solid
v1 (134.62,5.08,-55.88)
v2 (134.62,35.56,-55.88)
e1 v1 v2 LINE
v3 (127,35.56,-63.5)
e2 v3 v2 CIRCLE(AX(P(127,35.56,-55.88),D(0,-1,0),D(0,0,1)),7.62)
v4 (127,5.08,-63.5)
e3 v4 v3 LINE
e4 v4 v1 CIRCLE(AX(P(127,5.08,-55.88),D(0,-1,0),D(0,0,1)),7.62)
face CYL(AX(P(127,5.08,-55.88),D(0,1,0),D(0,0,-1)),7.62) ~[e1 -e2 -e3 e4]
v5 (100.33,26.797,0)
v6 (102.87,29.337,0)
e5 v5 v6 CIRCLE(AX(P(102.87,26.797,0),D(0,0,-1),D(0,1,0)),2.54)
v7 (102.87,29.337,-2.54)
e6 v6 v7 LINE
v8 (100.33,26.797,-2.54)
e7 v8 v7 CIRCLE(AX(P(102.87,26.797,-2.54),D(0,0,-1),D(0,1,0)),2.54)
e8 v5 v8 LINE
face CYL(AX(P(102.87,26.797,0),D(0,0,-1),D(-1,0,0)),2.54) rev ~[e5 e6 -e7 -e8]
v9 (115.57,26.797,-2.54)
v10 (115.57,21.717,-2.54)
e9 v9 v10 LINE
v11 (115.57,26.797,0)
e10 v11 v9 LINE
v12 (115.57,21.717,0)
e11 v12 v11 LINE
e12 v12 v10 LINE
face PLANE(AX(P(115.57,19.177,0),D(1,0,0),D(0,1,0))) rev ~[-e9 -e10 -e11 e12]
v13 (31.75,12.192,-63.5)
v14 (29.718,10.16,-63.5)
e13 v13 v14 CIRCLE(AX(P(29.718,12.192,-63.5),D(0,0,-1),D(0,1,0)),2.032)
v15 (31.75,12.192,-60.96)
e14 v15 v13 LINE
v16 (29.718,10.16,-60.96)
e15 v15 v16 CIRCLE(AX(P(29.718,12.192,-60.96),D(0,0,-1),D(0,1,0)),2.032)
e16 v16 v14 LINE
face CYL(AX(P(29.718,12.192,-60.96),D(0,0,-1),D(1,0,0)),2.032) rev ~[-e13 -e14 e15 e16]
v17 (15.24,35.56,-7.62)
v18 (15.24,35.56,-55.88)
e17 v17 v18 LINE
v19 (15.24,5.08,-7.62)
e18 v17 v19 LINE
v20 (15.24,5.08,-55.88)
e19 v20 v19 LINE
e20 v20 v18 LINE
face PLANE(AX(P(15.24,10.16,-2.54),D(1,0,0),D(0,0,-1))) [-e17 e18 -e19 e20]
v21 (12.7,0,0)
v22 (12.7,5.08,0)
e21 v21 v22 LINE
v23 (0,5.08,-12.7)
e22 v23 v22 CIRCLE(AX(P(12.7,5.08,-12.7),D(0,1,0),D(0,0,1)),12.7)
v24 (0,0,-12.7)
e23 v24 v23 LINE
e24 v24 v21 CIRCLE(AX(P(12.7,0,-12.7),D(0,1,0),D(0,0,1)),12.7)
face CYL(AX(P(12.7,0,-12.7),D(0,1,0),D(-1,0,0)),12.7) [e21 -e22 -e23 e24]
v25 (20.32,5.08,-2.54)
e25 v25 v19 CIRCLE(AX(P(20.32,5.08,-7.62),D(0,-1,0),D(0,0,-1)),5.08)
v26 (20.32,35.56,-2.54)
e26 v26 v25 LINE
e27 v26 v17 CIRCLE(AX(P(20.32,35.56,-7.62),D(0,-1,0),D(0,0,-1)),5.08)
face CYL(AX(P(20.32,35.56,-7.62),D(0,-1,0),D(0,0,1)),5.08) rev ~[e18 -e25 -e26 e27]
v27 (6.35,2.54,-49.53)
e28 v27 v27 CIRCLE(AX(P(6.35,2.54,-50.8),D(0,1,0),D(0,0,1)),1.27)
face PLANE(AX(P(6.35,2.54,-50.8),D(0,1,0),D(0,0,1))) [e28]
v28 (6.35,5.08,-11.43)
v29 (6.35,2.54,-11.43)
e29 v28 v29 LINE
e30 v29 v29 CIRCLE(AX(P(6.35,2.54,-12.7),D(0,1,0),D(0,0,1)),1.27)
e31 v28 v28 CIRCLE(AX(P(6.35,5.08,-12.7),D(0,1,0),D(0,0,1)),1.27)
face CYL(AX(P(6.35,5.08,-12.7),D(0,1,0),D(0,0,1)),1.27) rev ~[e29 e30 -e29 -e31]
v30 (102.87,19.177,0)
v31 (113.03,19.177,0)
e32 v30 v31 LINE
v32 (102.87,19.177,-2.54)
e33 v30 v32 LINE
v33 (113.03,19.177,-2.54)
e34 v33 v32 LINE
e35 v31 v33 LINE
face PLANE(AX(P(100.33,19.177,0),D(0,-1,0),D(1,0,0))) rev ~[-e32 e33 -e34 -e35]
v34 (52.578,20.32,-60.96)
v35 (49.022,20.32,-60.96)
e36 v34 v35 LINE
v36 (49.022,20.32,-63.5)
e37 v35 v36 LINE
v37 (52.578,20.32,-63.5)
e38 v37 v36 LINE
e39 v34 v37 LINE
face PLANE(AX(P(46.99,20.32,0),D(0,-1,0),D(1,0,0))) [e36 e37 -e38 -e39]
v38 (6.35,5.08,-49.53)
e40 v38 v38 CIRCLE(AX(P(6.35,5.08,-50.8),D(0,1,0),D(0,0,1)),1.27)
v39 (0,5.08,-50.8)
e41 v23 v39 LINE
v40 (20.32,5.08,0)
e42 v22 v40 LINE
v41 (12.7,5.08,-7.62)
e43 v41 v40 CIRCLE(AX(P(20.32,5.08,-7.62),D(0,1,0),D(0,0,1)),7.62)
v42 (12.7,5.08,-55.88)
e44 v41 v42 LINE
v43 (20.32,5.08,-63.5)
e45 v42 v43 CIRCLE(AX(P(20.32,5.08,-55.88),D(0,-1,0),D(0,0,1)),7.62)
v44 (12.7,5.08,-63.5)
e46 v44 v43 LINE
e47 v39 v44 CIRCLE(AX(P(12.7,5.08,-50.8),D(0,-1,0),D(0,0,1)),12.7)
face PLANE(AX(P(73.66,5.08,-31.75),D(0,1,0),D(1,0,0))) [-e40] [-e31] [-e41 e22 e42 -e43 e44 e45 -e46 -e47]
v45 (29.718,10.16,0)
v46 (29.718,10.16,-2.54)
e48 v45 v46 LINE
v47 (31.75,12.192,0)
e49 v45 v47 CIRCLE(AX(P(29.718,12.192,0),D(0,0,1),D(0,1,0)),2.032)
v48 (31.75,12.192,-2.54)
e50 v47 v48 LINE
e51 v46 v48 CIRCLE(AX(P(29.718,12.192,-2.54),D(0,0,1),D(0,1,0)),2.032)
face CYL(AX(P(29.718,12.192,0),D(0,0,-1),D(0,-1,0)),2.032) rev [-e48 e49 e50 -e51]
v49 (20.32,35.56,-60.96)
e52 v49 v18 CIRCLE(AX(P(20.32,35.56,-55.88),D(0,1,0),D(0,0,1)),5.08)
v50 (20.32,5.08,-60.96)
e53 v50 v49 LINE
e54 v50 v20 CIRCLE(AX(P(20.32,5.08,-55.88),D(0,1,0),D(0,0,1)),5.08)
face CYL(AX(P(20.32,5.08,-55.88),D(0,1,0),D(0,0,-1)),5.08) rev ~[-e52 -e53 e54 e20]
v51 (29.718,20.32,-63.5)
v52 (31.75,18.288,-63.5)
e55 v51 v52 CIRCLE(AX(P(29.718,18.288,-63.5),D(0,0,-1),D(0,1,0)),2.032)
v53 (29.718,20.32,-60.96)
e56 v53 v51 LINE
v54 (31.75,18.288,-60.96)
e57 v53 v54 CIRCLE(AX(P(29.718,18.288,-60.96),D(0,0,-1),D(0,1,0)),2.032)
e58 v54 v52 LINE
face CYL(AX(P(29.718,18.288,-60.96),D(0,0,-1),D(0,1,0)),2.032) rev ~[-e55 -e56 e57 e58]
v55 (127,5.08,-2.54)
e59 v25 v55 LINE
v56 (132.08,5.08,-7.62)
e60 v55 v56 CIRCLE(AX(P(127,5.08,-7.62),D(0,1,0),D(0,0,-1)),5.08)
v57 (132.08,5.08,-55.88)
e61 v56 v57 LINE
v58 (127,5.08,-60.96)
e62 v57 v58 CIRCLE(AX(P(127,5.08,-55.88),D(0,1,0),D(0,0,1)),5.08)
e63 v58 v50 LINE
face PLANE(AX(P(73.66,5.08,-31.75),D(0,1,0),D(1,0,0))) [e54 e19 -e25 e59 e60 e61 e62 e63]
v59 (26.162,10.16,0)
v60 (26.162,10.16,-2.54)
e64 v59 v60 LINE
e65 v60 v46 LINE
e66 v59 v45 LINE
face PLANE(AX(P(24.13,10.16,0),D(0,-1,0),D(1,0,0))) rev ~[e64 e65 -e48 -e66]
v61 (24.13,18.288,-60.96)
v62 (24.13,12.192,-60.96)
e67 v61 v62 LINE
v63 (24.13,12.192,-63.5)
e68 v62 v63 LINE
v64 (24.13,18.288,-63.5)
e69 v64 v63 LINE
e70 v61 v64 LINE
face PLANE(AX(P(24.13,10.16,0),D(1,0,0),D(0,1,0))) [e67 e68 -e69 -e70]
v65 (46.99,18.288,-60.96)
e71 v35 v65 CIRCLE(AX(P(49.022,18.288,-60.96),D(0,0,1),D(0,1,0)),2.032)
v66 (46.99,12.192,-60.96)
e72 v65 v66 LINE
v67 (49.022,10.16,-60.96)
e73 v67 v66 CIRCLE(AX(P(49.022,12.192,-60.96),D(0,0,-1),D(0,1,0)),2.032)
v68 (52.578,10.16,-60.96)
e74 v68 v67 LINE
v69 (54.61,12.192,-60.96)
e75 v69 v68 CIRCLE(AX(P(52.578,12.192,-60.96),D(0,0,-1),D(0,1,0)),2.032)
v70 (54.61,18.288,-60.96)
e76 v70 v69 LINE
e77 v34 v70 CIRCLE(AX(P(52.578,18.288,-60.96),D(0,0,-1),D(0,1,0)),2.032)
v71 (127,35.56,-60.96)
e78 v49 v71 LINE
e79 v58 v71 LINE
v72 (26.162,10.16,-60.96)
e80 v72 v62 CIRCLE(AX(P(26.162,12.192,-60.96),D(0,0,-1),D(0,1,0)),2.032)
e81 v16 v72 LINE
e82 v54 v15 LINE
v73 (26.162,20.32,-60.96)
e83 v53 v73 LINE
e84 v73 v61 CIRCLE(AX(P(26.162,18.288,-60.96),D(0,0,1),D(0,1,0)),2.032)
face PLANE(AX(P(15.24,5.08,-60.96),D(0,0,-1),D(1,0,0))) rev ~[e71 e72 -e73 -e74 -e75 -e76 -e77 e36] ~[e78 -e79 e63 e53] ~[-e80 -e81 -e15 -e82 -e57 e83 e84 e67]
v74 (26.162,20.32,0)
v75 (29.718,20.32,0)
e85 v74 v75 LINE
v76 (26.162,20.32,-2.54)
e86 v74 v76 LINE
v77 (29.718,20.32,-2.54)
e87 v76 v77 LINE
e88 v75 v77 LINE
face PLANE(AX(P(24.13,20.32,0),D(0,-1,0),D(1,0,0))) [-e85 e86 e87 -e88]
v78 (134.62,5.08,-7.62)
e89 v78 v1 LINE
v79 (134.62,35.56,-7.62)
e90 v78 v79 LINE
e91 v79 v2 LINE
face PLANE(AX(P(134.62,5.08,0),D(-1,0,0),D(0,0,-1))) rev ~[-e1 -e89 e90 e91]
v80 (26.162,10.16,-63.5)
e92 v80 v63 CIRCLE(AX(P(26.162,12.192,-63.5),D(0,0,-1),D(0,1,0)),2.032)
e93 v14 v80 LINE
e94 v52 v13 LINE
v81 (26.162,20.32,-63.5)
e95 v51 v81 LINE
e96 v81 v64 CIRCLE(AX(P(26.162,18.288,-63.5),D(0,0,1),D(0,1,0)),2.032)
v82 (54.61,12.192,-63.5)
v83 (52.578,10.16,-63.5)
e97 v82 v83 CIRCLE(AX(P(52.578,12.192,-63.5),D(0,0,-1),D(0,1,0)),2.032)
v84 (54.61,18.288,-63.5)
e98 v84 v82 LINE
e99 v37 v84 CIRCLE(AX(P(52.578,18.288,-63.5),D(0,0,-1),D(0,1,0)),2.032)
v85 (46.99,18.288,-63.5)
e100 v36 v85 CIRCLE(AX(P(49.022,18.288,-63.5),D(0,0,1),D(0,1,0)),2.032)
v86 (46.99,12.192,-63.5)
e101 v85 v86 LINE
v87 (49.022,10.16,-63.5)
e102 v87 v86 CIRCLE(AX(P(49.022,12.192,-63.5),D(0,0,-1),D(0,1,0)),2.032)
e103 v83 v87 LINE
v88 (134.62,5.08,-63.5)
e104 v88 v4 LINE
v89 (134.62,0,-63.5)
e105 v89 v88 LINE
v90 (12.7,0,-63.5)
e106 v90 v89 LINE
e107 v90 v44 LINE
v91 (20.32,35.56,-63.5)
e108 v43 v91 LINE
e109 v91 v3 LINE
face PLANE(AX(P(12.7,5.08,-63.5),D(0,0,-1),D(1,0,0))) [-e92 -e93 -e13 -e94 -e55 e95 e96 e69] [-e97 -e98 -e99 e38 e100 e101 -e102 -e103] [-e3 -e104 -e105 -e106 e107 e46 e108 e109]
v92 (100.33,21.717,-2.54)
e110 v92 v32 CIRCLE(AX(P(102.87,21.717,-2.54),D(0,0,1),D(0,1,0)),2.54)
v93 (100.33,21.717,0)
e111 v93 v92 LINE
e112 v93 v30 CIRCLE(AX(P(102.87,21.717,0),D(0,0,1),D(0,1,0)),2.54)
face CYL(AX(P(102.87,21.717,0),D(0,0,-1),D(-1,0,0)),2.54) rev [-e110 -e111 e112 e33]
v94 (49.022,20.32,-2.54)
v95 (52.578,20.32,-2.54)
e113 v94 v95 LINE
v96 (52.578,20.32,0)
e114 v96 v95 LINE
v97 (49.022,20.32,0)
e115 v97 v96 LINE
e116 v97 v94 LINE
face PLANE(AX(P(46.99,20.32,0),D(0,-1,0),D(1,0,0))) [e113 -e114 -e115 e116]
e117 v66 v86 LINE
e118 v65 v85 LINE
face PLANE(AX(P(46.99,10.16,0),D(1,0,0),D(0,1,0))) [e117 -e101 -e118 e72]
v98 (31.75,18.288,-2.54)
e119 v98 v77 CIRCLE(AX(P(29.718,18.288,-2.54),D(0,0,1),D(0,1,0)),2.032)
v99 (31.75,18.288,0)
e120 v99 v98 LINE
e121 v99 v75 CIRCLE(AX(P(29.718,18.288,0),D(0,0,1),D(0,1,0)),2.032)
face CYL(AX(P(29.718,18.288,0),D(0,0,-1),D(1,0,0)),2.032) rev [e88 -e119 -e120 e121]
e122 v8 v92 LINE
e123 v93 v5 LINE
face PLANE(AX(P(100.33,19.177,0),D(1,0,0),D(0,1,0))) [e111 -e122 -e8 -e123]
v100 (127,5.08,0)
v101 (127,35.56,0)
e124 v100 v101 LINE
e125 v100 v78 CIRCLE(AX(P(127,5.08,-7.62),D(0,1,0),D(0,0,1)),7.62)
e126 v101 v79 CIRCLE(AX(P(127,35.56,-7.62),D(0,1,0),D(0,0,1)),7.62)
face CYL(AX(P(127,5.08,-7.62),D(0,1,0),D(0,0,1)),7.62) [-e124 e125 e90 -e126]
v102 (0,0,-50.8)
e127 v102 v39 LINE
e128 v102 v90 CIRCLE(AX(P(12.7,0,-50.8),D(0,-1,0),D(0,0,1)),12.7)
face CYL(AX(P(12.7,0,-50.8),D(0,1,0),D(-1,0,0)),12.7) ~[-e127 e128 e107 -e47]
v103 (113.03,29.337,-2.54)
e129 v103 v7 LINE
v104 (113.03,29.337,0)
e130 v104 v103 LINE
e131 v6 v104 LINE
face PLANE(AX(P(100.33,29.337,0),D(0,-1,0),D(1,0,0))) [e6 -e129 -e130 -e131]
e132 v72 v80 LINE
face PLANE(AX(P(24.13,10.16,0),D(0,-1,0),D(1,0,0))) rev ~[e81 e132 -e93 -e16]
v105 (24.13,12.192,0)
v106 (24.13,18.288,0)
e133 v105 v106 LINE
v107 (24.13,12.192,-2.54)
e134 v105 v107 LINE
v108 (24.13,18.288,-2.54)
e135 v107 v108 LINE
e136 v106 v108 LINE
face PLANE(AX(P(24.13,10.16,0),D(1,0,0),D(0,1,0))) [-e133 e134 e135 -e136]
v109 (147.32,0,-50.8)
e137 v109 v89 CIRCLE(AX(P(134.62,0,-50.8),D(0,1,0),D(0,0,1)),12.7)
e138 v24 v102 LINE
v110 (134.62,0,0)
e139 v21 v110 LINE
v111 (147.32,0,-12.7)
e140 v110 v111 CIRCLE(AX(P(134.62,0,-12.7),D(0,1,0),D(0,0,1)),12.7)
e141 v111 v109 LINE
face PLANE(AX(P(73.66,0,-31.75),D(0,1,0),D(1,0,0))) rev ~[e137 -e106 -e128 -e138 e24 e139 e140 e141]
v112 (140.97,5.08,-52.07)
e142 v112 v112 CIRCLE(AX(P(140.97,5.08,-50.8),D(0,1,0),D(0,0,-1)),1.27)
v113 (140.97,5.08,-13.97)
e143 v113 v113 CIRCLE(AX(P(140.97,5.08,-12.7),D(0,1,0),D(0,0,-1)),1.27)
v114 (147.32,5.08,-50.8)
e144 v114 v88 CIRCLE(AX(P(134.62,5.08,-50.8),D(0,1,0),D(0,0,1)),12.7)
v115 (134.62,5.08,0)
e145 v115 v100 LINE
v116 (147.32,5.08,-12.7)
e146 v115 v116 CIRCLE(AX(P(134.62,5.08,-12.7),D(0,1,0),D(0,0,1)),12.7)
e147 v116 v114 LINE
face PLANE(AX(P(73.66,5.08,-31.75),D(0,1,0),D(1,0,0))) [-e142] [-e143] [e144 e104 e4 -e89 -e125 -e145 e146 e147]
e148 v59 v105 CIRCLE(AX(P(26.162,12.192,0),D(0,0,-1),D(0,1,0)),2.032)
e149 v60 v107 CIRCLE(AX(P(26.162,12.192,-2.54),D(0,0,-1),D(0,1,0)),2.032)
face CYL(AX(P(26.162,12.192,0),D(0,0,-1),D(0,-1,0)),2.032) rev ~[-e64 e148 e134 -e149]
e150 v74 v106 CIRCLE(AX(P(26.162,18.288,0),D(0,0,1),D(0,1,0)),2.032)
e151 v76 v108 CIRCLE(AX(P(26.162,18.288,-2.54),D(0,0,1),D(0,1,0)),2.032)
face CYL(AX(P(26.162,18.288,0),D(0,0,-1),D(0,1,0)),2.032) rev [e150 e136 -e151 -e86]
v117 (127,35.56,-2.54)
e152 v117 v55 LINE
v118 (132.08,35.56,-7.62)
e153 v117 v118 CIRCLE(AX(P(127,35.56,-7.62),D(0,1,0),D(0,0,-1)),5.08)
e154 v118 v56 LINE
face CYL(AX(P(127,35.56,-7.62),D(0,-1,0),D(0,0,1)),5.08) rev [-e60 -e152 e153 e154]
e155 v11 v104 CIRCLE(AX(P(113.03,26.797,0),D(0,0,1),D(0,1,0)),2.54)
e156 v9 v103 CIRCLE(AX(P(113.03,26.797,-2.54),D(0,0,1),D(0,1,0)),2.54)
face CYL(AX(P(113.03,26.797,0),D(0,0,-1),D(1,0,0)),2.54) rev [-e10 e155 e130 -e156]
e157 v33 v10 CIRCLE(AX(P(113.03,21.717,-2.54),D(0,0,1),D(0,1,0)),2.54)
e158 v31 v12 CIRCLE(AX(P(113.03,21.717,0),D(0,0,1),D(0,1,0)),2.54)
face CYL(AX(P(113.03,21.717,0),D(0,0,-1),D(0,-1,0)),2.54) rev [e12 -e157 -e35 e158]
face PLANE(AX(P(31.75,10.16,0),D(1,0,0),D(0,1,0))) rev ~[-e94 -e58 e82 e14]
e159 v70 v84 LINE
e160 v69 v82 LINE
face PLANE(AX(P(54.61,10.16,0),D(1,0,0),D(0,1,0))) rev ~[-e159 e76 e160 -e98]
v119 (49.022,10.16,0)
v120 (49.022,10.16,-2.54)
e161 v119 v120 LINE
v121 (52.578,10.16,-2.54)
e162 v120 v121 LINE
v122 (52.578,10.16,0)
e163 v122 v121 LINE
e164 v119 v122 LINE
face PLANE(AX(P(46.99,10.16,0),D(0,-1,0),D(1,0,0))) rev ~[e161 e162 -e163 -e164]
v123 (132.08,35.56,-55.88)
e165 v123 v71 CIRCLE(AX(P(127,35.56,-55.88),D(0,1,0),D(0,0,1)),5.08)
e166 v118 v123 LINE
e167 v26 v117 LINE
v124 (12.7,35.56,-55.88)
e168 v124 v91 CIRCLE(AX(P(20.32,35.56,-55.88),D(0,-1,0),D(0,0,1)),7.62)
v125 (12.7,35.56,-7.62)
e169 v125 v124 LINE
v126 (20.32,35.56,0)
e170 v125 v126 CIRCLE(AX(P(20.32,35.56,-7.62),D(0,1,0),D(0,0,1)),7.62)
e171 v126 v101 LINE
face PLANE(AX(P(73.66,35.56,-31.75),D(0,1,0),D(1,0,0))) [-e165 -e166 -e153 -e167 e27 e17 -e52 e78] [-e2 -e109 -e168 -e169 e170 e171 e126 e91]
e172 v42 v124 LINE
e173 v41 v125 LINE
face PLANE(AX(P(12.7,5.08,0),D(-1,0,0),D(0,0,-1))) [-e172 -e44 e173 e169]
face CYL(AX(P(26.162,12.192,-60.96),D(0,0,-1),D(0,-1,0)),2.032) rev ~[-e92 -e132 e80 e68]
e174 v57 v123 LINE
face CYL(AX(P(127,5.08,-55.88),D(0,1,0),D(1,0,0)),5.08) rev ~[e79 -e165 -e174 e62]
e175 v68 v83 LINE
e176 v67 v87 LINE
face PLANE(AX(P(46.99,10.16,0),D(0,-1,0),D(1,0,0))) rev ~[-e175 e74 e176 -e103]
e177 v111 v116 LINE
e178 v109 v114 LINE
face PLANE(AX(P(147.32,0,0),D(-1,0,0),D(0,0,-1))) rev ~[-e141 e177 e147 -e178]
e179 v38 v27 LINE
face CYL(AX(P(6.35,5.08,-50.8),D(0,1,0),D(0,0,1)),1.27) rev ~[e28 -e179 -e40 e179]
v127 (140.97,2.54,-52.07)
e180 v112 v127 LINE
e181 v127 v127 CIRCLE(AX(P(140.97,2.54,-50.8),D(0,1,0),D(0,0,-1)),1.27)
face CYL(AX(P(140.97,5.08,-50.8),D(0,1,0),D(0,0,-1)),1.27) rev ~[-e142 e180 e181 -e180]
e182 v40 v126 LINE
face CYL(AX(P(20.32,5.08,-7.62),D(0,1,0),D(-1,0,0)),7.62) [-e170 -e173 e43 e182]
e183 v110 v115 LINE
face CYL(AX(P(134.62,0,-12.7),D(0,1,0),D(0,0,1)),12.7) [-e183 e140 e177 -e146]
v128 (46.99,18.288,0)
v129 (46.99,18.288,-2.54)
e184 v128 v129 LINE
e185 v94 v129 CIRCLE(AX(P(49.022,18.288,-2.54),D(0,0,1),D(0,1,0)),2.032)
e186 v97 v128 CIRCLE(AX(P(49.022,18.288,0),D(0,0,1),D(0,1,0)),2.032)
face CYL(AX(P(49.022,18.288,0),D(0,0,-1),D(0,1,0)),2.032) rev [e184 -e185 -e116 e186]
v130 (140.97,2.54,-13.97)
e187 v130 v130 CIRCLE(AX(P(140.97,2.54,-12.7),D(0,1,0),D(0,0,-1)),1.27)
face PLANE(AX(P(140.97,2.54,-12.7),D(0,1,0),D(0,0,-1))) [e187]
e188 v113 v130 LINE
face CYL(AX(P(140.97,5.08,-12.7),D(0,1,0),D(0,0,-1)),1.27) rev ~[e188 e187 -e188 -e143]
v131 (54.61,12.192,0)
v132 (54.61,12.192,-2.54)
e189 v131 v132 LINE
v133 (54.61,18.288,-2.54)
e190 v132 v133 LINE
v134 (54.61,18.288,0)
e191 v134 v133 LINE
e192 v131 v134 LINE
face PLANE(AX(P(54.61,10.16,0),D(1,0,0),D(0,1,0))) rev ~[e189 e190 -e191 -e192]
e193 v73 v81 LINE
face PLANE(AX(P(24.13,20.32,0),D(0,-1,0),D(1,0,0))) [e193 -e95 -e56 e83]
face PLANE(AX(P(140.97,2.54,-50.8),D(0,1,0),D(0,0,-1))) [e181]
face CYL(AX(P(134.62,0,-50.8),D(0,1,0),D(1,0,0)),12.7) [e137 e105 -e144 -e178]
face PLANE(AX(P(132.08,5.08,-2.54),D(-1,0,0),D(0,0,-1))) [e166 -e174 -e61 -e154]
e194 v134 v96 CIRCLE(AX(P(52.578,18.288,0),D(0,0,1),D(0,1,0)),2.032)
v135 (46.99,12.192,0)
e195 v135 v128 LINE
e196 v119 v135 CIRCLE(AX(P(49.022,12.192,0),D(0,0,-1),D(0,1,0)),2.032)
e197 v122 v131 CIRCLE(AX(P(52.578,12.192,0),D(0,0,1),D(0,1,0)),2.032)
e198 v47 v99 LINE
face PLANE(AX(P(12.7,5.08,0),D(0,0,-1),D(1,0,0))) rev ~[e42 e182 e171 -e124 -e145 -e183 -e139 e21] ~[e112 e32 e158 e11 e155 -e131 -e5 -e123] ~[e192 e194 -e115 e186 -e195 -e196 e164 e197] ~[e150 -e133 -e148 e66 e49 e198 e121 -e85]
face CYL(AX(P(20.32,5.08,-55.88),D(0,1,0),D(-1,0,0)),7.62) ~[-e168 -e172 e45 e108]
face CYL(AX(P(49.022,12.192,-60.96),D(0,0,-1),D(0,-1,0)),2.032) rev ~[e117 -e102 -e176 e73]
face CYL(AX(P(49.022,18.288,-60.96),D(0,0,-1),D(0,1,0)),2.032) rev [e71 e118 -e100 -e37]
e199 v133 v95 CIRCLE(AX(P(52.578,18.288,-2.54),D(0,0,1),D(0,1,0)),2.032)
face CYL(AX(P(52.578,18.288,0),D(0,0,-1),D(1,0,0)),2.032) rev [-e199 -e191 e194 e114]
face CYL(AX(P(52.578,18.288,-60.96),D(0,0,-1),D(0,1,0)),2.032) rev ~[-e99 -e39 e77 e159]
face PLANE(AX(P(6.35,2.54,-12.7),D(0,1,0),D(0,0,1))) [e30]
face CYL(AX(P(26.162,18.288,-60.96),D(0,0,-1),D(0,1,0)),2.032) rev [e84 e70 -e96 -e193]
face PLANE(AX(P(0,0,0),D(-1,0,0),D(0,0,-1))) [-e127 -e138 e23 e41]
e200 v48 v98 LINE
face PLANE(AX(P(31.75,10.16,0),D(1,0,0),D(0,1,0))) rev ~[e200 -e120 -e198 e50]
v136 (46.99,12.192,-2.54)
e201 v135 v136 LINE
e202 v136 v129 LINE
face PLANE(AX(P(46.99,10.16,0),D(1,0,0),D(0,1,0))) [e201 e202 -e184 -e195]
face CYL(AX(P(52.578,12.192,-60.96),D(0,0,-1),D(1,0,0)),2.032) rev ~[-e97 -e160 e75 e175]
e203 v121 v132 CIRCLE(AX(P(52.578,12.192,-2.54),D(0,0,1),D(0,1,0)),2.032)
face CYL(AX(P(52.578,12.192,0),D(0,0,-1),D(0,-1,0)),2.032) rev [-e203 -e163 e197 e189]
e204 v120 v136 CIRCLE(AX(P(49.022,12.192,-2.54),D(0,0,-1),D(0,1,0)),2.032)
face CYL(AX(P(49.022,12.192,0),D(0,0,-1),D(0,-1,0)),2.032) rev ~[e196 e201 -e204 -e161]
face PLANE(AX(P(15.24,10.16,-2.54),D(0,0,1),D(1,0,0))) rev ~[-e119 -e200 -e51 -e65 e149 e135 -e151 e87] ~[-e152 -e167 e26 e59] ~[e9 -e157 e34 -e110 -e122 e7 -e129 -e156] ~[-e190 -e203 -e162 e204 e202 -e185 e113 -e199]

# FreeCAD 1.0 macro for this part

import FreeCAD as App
import Part
import Sketcher
from FreeCAD import Vector
Q = App.Units.Quantity


def edges_at(feature, points):
    """Names of the edges that pass closest to the given points."""
    edges = feature.Shape.Edges
    near = lambda p: min(range(len(edges)), key=lambda i: edges[i].distToShape(Part.Vertex(*p))[0])
    return sorted({f"Edge{near(p) + 1}" for p in points})

doc = App.newDocument("Part")
body = doc.addObject("PartDesign::Body", "Body")

# Sketch on XZ plane
sketch1 = body.newObject("Sketcher::SketchObject", "Sketch")
sketch1.AttachmentSupport = (doc.getObject("XZ_Plane"), [""])
sketch1.MapMode = "FlatFace"
sketch1.addGeometry([
    Part.LineSegment(Vector(0, -63.5, 0), Vector(0, 0, 0)),
    Part.LineSegment(Vector(0, 0, 0), Vector(147.32, 0, 0)),
    Part.LineSegment(Vector(147.32, 0, 0), Vector(147.32, -63.5, 0)),
    Part.LineSegment(Vector(147.32, -63.5, 0), Vector(0, -63.5, 0)),
], False)
sketch1.addConstraint([
    Sketcher.Constraint("Coincident", 0, 2, 1, 1),
    Sketcher.Constraint("Coincident", 1, 2, 2, 1),
    Sketcher.Constraint("Coincident", 2, 2, 3, 1),
    Sketcher.Constraint("Coincident", 3, 2, 0, 1),
    Sketcher.Constraint("Vertical", 0),
    Sketcher.Constraint("Horizontal", 1),
    Sketcher.Constraint("Vertical", 2),
    Sketcher.Constraint("Horizontal", 3),
    Sketcher.Constraint("Coincident", 0, 2, -1, 1),
    Sketcher.Constraint("DistanceX", 1, 1, 1, 2, Q("5.8 in")),
    Sketcher.Constraint("DistanceY", 0, 1, 0, 2, Q("2.5 in")),
])
pad1 = body.newObject("PartDesign::Pad", "Pad")
pad1.Profile = sketch1
pad1.Length = Q("0.2 in")
pad1.Reversed = True
doc.recompute()

fillet = body.newObject("PartDesign::Fillet", "Fillet")
fillet.Base = (pad1, edges_at(pad1, [
    (0, 2.54, -63.5),
    (147.32, 2.54, -63.5),
    (147.32, 2.54, 0),
    (0, 2.54, 0),
]))
fillet.Radius = Q("0.5 in")

# Sketch on XZ plane
sketch2 = body.newObject("Sketcher::SketchObject", "Sketch001")
sketch2.AttachmentSupport = (doc.getObject("XZ_Plane"), [""])
sketch2.MapMode = "FlatFace"
sketch2.AttachmentOffset = App.Placement(Vector(0, 0, -0.2 * 25.4), App.Rotation())
sketch2.addGeometry([
    Part.LineSegment(Vector(12.7, -63.5, 0), Vector(12.7, 0, 0)),  # 0
    Part.LineSegment(Vector(12.7, 0, 0), Vector(134.62, 0, 0)),  # 1
    Part.LineSegment(Vector(134.62, 0, 0), Vector(134.62, -63.5, 0)),  # 2
    Part.LineSegment(Vector(134.62, -63.5, 0), Vector(12.7, -63.5, 0)),  # 3
    Part.LineSegment(Vector(132.08, -2.54, 0), Vector(15.24, -2.54, 0)),  # 4
    Part.LineSegment(Vector(15.24, -2.54, 0), Vector(15.24, -60.96, 0)),  # 5
    Part.LineSegment(Vector(15.24, -60.96, 0), Vector(132.08, -60.96, 0)),  # 6
    Part.LineSegment(Vector(132.08, -60.96, 0), Vector(132.08, -2.54, 0)),  # 7
], False)
sketch2.addConstraint([
    Sketcher.Constraint("Coincident", 0, 2, 1, 1),
    Sketcher.Constraint("Coincident", 1, 2, 2, 1),
    Sketcher.Constraint("Coincident", 2, 2, 3, 1),
    Sketcher.Constraint("Coincident", 3, 2, 0, 1),
    Sketcher.Constraint("Coincident", 4, 2, 5, 1),
    Sketcher.Constraint("Coincident", 5, 2, 6, 1),
    Sketcher.Constraint("Coincident", 6, 2, 7, 1),
    Sketcher.Constraint("Coincident", 7, 2, 4, 1),
    Sketcher.Constraint("Vertical", 0),
    Sketcher.Constraint("Horizontal", 1),
    Sketcher.Constraint("Vertical", 2),
    Sketcher.Constraint("Horizontal", 3),
    Sketcher.Constraint("Horizontal", 4),
    Sketcher.Constraint("Vertical", 5),
    Sketcher.Constraint("Horizontal", 6),
    Sketcher.Constraint("Vertical", 7),
    Sketcher.Constraint("PointOnObject", 0, 2, -1),
    Sketcher.Constraint("DistanceX", 1, 1, 1, 2, Q("4.8 in")),
    Sketcher.Constraint("DistanceX", 4, 2, 4, 1, Q("4.6 in")),
    Sketcher.Constraint("DistanceY", 0, 1, 0, 2, Q("2.5 in")),
    Sketcher.Constraint("DistanceY", 5, 2, 5, 1, Q("2.3 in")),
    Sketcher.Constraint("DistanceX", -1, 1, 0, 2, Q("0.5 in")),
    Sketcher.Constraint("DistanceX", -1, 1, 4, 2, Q("0.6 in")),
    Sketcher.Constraint("DistanceY", 4, 2, -1, 1, Q("0.1 in")),
])
pad2 = body.newObject("PartDesign::Pad", "Pad001")
pad2.Profile = sketch2
pad2.Length = Q("1.2 in")
pad2.Reversed = True

# Sketch on XZ plane
sketch3 = body.newObject("Sketcher::SketchObject", "Sketch002")
sketch3.AttachmentSupport = (doc.getObject("XZ_Plane"), [""])
sketch3.MapMode = "FlatFace"
sketch3.AttachmentOffset = App.Placement(Vector(0, 0, -0.2 * 25.4), App.Rotation())
sketch3.addGeometry([
    Part.LineSegment(Vector(15.24, -60.96, 0), Vector(15.24, -50.8, 0)),  # 0
    Part.LineSegment(Vector(15.24, -50.8, 0), Vector(25.4, -50.8, 0)),  # 1
    Part.LineSegment(Vector(25.4, -50.8, 0), Vector(25.4, -60.96, 0)),  # 2
    Part.LineSegment(Vector(25.4, -60.96, 0), Vector(15.24, -60.96, 0)),  # 3
    Part.LineSegment(Vector(121.92, -60.96, 0), Vector(121.92, -50.8, 0)),  # 4
    Part.LineSegment(Vector(121.92, -50.8, 0), Vector(132.08, -50.8, 0)),  # 5
    Part.LineSegment(Vector(132.08, -50.8, 0), Vector(132.08, -60.96, 0)),  # 6
    Part.LineSegment(Vector(132.08, -60.96, 0), Vector(121.92, -60.96, 0)),  # 7
    Part.LineSegment(Vector(121.92, -12.7, 0), Vector(121.92, -2.54, 0)),  # 8
    Part.LineSegment(Vector(121.92, -2.54, 0), Vector(132.08, -2.54, 0)),  # 9
    Part.LineSegment(Vector(132.08, -2.54, 0), Vector(132.08, -12.7, 0)),  # 10
    Part.LineSegment(Vector(132.08, -12.7, 0), Vector(121.92, -12.7, 0)),  # 11
    Part.LineSegment(Vector(15.24, -12.7, 0), Vector(15.24, -2.54, 0)),  # 12
    Part.LineSegment(Vector(15.24, -2.54, 0), Vector(25.4, -2.54, 0)),  # 13
    Part.LineSegment(Vector(25.4, -2.54, 0), Vector(25.4, -12.7, 0)),  # 14
    Part.LineSegment(Vector(25.4, -12.7, 0), Vector(15.24, -12.7, 0)),  # 15
], False)
sketch3.addConstraint([
    Sketcher.Constraint("Coincident", 0, 2, 1, 1),
    Sketcher.Constraint("Coincident", 1, 2, 2, 1),
    Sketcher.Constraint("Coincident", 2, 2, 3, 1),
    Sketcher.Constraint("Coincident", 3, 2, 0, 1),
    Sketcher.Constraint("Coincident", 4, 2, 5, 1),
    Sketcher.Constraint("Coincident", 5, 2, 6, 1),
    Sketcher.Constraint("Coincident", 6, 2, 7, 1),
    Sketcher.Constraint("Coincident", 7, 2, 4, 1),
    Sketcher.Constraint("Coincident", 8, 2, 9, 1),
    Sketcher.Constraint("Coincident", 9, 2, 10, 1),
    Sketcher.Constraint("Coincident", 10, 2, 11, 1),
    Sketcher.Constraint("Coincident", 11, 2, 8, 1),
    Sketcher.Constraint("Coincident", 12, 2, 13, 1),
    Sketcher.Constraint("Coincident", 13, 2, 14, 1),
    Sketcher.Constraint("Coincident", 14, 2, 15, 1),
    Sketcher.Constraint("Coincident", 15, 2, 12, 1),
    Sketcher.Constraint("Vertical", 0),
    Sketcher.Constraint("Horizontal", 1),
    Sketcher.Constraint("Vertical", 2),
    Sketcher.Constraint("Horizontal", 3),
    Sketcher.Constraint("Vertical", 4),
    Sketcher.Constraint("Horizontal", 5),
    Sketcher.Constraint("Vertical", 6),
    Sketcher.Constraint("Horizontal", 7),
    Sketcher.Constraint("Vertical", 8),
    Sketcher.Constraint("Horizontal", 9),
    Sketcher.Constraint("Vertical", 10),
    Sketcher.Constraint("Horizontal", 11),
    Sketcher.Constraint("Vertical", 12),
    Sketcher.Constraint("Horizontal", 13),
    Sketcher.Constraint("Vertical", 14),
    Sketcher.Constraint("Horizontal", 15),
    Sketcher.Constraint("Horizontal", 1, 2, 4, 2),
    Sketcher.Constraint("Horizontal", 3, 2, 6, 2),
    Sketcher.Constraint("Horizontal", 9, 2, 12, 2),
    Sketcher.Constraint("Horizontal", 11, 2, 14, 2),
    Sketcher.Constraint("Vertical", 7, 2, 8, 2),
    Sketcher.Constraint("Vertical", 6, 2, 9, 2),
    Sketcher.Constraint("Vertical", 3, 2, 12, 2),
    Sketcher.Constraint("Vertical", 2, 2, 13, 2),
    Sketcher.Constraint("Equal", 3, 5),
    Sketcher.Constraint("Equal", 15, 0),
    Sketcher.Constraint("Equal", 6, 8),
    Sketcher.Constraint("DistanceX", 1, 1, 1, 2, Q("0.4 in")),
    Sketcher.Constraint("DistanceY", 0, 2, -1, 1, Q("2 in")),
    Sketcher.Constraint("DistanceX", -1, 1, 1, 2, Q("1 in")),
    Sketcher.Constraint("DistanceX", -1, 1, 4, 2, Q("4.8 in")),
    Sketcher.Constraint("DistanceY", 8, 2, -1, 1, Q("0.1 in")),
])
pad3 = body.newObject("PartDesign::Pad", "Pad002")
pad3.Profile = sketch3
pad3.Length = Q("0.2 in")
pad3.Reversed = True
doc.recompute()

fillet2 = body.newObject("PartDesign::Fillet", "Fillet001")
fillet2.Base = (pad3, edges_at(pad3, [
    (25.4, 7.62, -12.7),
    (25.4, 7.62, -50.8),
    (121.92, 7.62, -50.8),
    (121.92, 7.62, -12.7),
]))
fillet2.Radius = Q("0.2 in")

# Sketch on XZ plane
sketch4 = body.newObject("Sketcher::SketchObject", "Sketch003")
sketch4.AttachmentSupport = (doc.getObject("XZ_Plane"), [""])
sketch4.MapMode = "FlatFace"
sketch4.AttachmentOffset = App.Placement(Vector(0, 0, -0.4 * 25.4), App.Rotation())
sketch4.addGeometry([
    Part.Circle(Vector(20.32, -55.88, 0), Vector(0, 0, 1), 3.175),
    Part.Circle(Vector(127, -55.88, 0), Vector(0, 0, 1), 3.175),
    Part.Circle(Vector(20.32, -7.62, 0), Vector(0, 0, 1), 3.175),
    Part.Circle(Vector(127, -7.62, 0), Vector(0, 0, 1), 3.175),
], False)
sketch4.addConstraint([
    Sketcher.Constraint("Equal", 0, 1),
    Sketcher.Constraint("Equal", 1, 2),
    Sketcher.Constraint("Equal", 2, 3),
    Sketcher.Constraint("Horizontal", 0, 3, 1, 3),
    Sketcher.Constraint("Horizontal", 2, 3, 3, 3),
    Sketcher.Constraint("Vertical", 0, 3, 2, 3),
    Sketcher.Constraint("Vertical", 1, 3, 3, 3),
    Sketcher.Constraint("Diameter", 0, Q("0.25 in")),
    Sketcher.Constraint("DistanceX", -1, 1, 1, 3, Q("5 in")),
    Sketcher.Constraint("DistanceX", -1, 1, 0, 3, Q("0.8 in")),
    Sketcher.Constraint("DistanceY", 0, 3, -1, 1, Q("2.2 in")),
    Sketcher.Constraint("DistanceY", 2, 3, -1, 1, Q("0.3 in")),
])
pocket1 = body.newObject("PartDesign::Pocket", "Pocket")
pocket1.Profile = sketch4
pocket1.Type = "ThroughAll"
pocket1.Reversed = True
doc.recompute()

fillet3 = body.newObject("PartDesign::Fillet", "Fillet002")
fillet3.Base = (pocket1, edges_at(pocket1, [
    (12.7, 20.32, -63.5),
    (12.7, 20.32, 0),
    (134.62, 20.32, 0),
    (134.62, 20.32, -63.5),
]))
fillet3.Radius = Q("0.3 in")

# Sketch on XZ plane
sketch5 = body.newObject("Sketcher::SketchObject", "Sketch004")
sketch5.AttachmentSupport = (doc.getObject("XZ_Plane"), [""])
sketch5.MapMode = "FlatFace"
sketch5.AttachmentOffset = App.Placement(Vector(0, 0, -0.4 * 25.4), App.Rotation())
sketch5.addGeometry([
    Part.Circle(Vector(20.32, -55.88, 0), Vector(0, 0, 1), 3.175),  # 0
    Part.Circle(Vector(20.32, -55.88, 0), Vector(0, 0, 1), 1.27),  # 1
    Part.Circle(Vector(127, -55.88, 0), Vector(0, 0, 1), 3.175),  # 2
    Part.Circle(Vector(127, -55.88, 0), Vector(0, 0, 1), 1.27),  # 3
    Part.Circle(Vector(20.32, -7.62, 0), Vector(0, 0, 1), 3.175),  # 4
    Part.Circle(Vector(20.32, -7.62, 0), Vector(0, 0, 1), 1.27),  # 5
    Part.Circle(Vector(127, -7.62, 0), Vector(0, 0, 1), 3.175),  # 6
    Part.Circle(Vector(127, -7.62, 0), Vector(0, 0, 1), 1.27),  # 7
], False)
sketch5.addConstraint([
    Sketcher.Constraint("Coincident", 1, 3, 0, 3),
    Sketcher.Constraint("Coincident", 3, 3, 2, 3),
    Sketcher.Constraint("Coincident", 5, 3, 4, 3),
    Sketcher.Constraint("Coincident", 7, 3, 6, 3),
    Sketcher.Constraint("Equal", 0, 2),
    Sketcher.Constraint("Equal", 1, 3),
    Sketcher.Constraint("Equal", 2, 4),
    Sketcher.Constraint("Equal", 3, 5),
    Sketcher.Constraint("Equal", 4, 6),
    Sketcher.Constraint("Equal", 5, 7),
    Sketcher.Constraint("Horizontal", 1, 3, 2, 3),
    Sketcher.Constraint("Horizontal", 5, 3, 6, 3),
    Sketcher.Constraint("Vertical", 1, 3, 4, 3),
    Sketcher.Constraint("Vertical", 3, 3, 6, 3),
    Sketcher.Constraint("Diameter", 1, Q("0.1 in")),
    Sketcher.Constraint("Diameter", 0, Q("0.25 in")),
    Sketcher.Constraint("DistanceX", -1, 1, 2, 3, Q("5 in")),
    Sketcher.Constraint("DistanceX", -1, 1, 0, 3, Q("0.8 in")),
    Sketcher.Constraint("DistanceY", 0, 3, -1, 1, Q("2.2 in")),
    Sketcher.Constraint("DistanceY", 4, 3, -1, 1, Q("0.3 in")),
])
pad4 = body.newObject("PartDesign::Pad", "Pad003")
pad4.Profile = sketch5
pad4.Length = Q("0.2 in")

# Sketch on XZ plane
sketch6 = body.newObject("Sketcher::SketchObject", "Sketch005")
sketch6.AttachmentSupport = (doc.getObject("XZ_Plane"), [""])
sketch6.MapMode = "FlatFace"
sketch6.AttachmentOffset = App.Placement(Vector(0, 0, -0.2 * 25.4), App.Rotation())
sketch6.addGeometry([
    Part.Circle(Vector(6.35, -50.8, 0), Vector(0, 0, 1), 1.27),
    Part.Circle(Vector(6.35, -12.7, 0), Vector(0, 0, 1), 1.27),
    Part.Circle(Vector(140.97, -12.7, 0), Vector(0, 0, 1), 1.27),
    Part.Circle(Vector(140.97, -50.8, 0), Vector(0, 0, 1), 1.27),
], False)
sketch6.addConstraint([
    Sketcher.Constraint("Equal", 0, 1),
    Sketcher.Constraint("Equal", 1, 2),
    Sketcher.Constraint("Equal", 2, 3),
    Sketcher.Constraint("Horizontal", 1, 3, 2, 3),
    Sketcher.Constraint("Horizontal", 0, 3, 3, 3),
    Sketcher.Constraint("Vertical", 0, 3, 1, 3),
    Sketcher.Constraint("Vertical", 2, 3, 3, 3),
    Sketcher.Constraint("Diameter", 0, Q("0.1 in")),
    Sketcher.Constraint("DistanceY", 0, 3, -1, 1, Q("2 in")),
    Sketcher.Constraint("DistanceY", 1, 3, -1, 1, Q("0.5 in")),
    Sketcher.Constraint("DistanceX", 1, 3, 2, 3, Q("5.3 in")),
    Sketcher.Constraint("DistanceX", -1, 1, 0, 3, Q("0.25 in")),
])
pocket2 = body.newObject("PartDesign::Pocket", "Pocket001")
pocket2.Profile = sketch6
pocket2.Length = Q("0.1 in")
pocket2.Reversed = True

# Sketch on XZ plane
sketch7 = body.newObject("Sketcher::SketchObject", "Sketch006")
sketch7.AttachmentSupport = (doc.getObject("XZ_Plane"), [""])
sketch7.MapMode = "FlatFace"
sketch7.AttachmentOffset = App.Placement(Vector(0, 0, -0.1 * 25.4), App.Rotation())
sketch7.addGeometry([
    Part.Circle(Vector(20.32, -7.62, 0), Vector(0, 0, 1), 3.175),
    Part.Circle(Vector(127, -7.62, 0), Vector(0, 0, 1), 3.175),
    Part.Circle(Vector(20.32, -55.88, 0), Vector(0, 0, 1), 3.175),
    Part.Circle(Vector(127, -55.88, 0), Vector(0, 0, 1), 3.175),
], False)
sketch7.addConstraint([
    Sketcher.Constraint("Equal", 0, 1),
    Sketcher.Constraint("Equal", 1, 2),
    Sketcher.Constraint("Equal", 2, 3),
    Sketcher.Constraint("Horizontal", 0, 3, 1, 3),
    Sketcher.Constraint("Horizontal", 2, 3, 3, 3),
    Sketcher.Constraint("Vertical", 0, 3, 2, 3),
    Sketcher.Constraint("Vertical", 1, 3, 3, 3),
    Sketcher.Constraint("Diameter", 0, Q("0.25 in")),
    Sketcher.Constraint("DistanceX", -1, 1, 1, 3, Q("5 in")),
    Sketcher.Constraint("DistanceX", -1, 1, 0, 3, Q("0.8 in")),
    Sketcher.Constraint("DistanceY", 0, 3, -1, 1, Q("0.3 in")),
    Sketcher.Constraint("DistanceY", 2, 3, -1, 1, Q("2.2 in")),
])
pad5 = body.newObject("PartDesign::Pad", "Pad004")
pad5.Profile = sketch7
pad5.Length = Q("0.1 in")

# Sketch on XZ plane
sketch8 = body.newObject("Sketcher::SketchObject", "Sketch007")
sketch8.AttachmentSupport = (doc.getObject("XZ_Plane"), [""])
sketch8.MapMode = "FlatFace"
sketch8.AttachmentOffset = App.Placement(Vector(0, 0, -0.4 * 25.4), App.Rotation())
sketch8.addGeometry([
    Part.LineSegment(Vector(15.24, -60.96, 0), Vector(15.24, -2.54, 0)),
    Part.LineSegment(Vector(15.24, -2.54, 0), Vector(132.08, -2.54, 0)),
    Part.LineSegment(Vector(132.08, -2.54, 0), Vector(132.08, -60.96, 0)),
    Part.LineSegment(Vector(132.08, -60.96, 0), Vector(15.24, -60.96, 0)),
], False)
sketch8.addConstraint([
    Sketcher.Constraint("Coincident", 0, 2, 1, 1),
    Sketcher.Constraint("Coincident", 1, 2, 2, 1),
    Sketcher.Constraint("Coincident", 2, 2, 3, 1),
    Sketcher.Constraint("Coincident", 3, 2, 0, 1),
    Sketcher.Constraint("Vertical", 0),
    Sketcher.Constraint("Horizontal", 1),
    Sketcher.Constraint("Vertical", 2),
    Sketcher.Constraint("Horizontal", 3),
    Sketcher.Constraint("DistanceX", 1, 1, 1, 2, Q("4.6 in")),
    Sketcher.Constraint("DistanceY", 0, 1, 0, 2, Q("2.3 in")),
    Sketcher.Constraint("DistanceX", -1, 1, 0, 2, Q("0.6 in")),
    Sketcher.Constraint("DistanceY", 0, 2, -1, 1, Q("0.1 in")),
])
pocket3 = body.newObject("PartDesign::Pocket", "Pocket002")
pocket3.Profile = sketch8
pocket3.Length = Q("0.2 in")
pocket3.Reversed = True

# Sketch on XZ plane
sketch9 = body.newObject("Sketcher::SketchObject", "Sketch008")
sketch9.AttachmentSupport = (doc.getObject("XZ_Plane"), [""])
sketch9.MapMode = "FlatFace"
sketch9.AttachmentOffset = App.Placement(Vector(0, 0, -0.2 * 25.4), App.Rotation())
sketch9.addGeometry([
    Part.LineSegment(Vector(15.24, -60.96, 0), Vector(15.24, -2.54, 0)),
    Part.LineSegment(Vector(15.24, -2.54, 0), Vector(132.08, -2.54, 0)),
    Part.LineSegment(Vector(132.08, -2.54, 0), Vector(132.08, -60.96, 0)),
    Part.LineSegment(Vector(132.08, -60.96, 0), Vector(15.24, -60.96, 0)),
], False)
sketch9.addConstraint([
    Sketcher.Constraint("Coincident", 0, 2, 1, 1),
    Sketcher.Constraint("Coincident", 1, 2, 2, 1),
    Sketcher.Constraint("Coincident", 2, 2, 3, 1),
    Sketcher.Constraint("Coincident", 3, 2, 0, 1),
    Sketcher.Constraint("Vertical", 0),
    Sketcher.Constraint("Horizontal", 1),
    Sketcher.Constraint("Vertical", 2),
    Sketcher.Constraint("Horizontal", 3),
    Sketcher.Constraint("DistanceX", 1, 1, 1, 2, Q("4.6 in")),
    Sketcher.Constraint("DistanceY", 0, 1, 0, 2, Q("2.3 in")),
    Sketcher.Constraint("DistanceX", -1, 1, 0, 2, Q("0.6 in")),
    Sketcher.Constraint("DistanceY", 0, 2, -1, 1, Q("0.1 in")),
])
pad6 = body.newObject("PartDesign::Pad", "Pad005")
pad6.Profile = sketch9
pad6.Length = Q("0.2 in")
doc.recompute()

fillet4 = body.newObject("PartDesign::Fillet", "Fillet003")
fillet4.Base = (pad6, edges_at(pad6, [
    (15.24, 20.32, -2.54),
    (132.08, 20.32, -2.54),
    (132.08, 20.32, -60.96),
    (15.24, 20.32, -60.96),
]))
fillet4.Radius = Q("0.2 in")

# Sketch on XY plane
sketch10 = body.newObject("Sketcher::SketchObject", "Sketch009")
sketch10.AttachmentSupport = (doc.getObject("XY_Plane"), [""])
sketch10.MapMode = "FlatFace"
sketch10.addGeometry([
    Part.LineSegment(Vector(24.13, 20.32, 0), Vector(24.13, 10.16, 0)),  # 0
    Part.LineSegment(Vector(24.13, 10.16, 0), Vector(31.75, 10.16, 0)),  # 1
    Part.LineSegment(Vector(31.75, 10.16, 0), Vector(31.75, 20.32, 0)),  # 2
    Part.LineSegment(Vector(31.75, 20.32, 0), Vector(24.13, 20.32, 0)),  # 3
    Part.LineSegment(Vector(46.99, 20.32, 0), Vector(46.99, 10.16, 0)),  # 4
    Part.LineSegment(Vector(46.99, 10.16, 0), Vector(54.61, 10.16, 0)),  # 5
    Part.LineSegment(Vector(54.61, 10.16, 0), Vector(54.61, 20.32, 0)),  # 6
    Part.LineSegment(Vector(54.61, 20.32, 0), Vector(46.99, 20.32, 0)),  # 7
], False)
sketch10.addConstraint([
    Sketcher.Constraint("Coincident", 0, 2, 1, 1),
    Sketcher.Constraint("Coincident", 1, 2, 2, 1),
    Sketcher.Constraint("Coincident", 2, 2, 3, 1),
    Sketcher.Constraint("Coincident", 3, 2, 0, 1),
    Sketcher.Constraint("Coincident", 4, 2, 5, 1),
    Sketcher.Constraint("Coincident", 5, 2, 6, 1),
    Sketcher.Constraint("Coincident", 6, 2, 7, 1),
    Sketcher.Constraint("Coincident", 7, 2, 4, 1),
    Sketcher.Constraint("Vertical", 0),
    Sketcher.Constraint("Horizontal", 1),
    Sketcher.Constraint("Vertical", 2),
    Sketcher.Constraint("Horizontal", 3),
    Sketcher.Constraint("Vertical", 4),
    Sketcher.Constraint("Horizontal", 5),
    Sketcher.Constraint("Vertical", 6),
    Sketcher.Constraint("Horizontal", 7),
    Sketcher.Constraint("Horizontal", 1, 2, 4, 2),
    Sketcher.Constraint("Horizontal", 3, 2, 6, 2),
    Sketcher.Constraint("Equal", 3, 5),
    Sketcher.Constraint("DistanceX", 1, 1, 1, 2, Q("0.3 in")),
    Sketcher.Constraint("DistanceY", 0, 2, 0, 1, Q("0.4 in")),
    Sketcher.Constraint("DistanceY", -1, 1, 0, 2, Q("0.4 in")),
    Sketcher.Constraint("DistanceX", 1, 2, 4, 2, Q("0.6 in")),
    Sketcher.Constraint("DistanceX", -1, 1, 0, 2, Q("0.95 in")),
])
pocket4 = body.newObject("PartDesign::Pocket", "Pocket003")
pocket4.Profile = sketch10
pocket4.Type = "ThroughAll"
doc.recompute()

fillet5 = body.newObject("PartDesign::Fillet", "Fillet004")
fillet5.Base = (pocket4, edges_at(pocket4, [
    (24.13, 10.16, -1.27),
    (24.13, 20.32, -1.27),
    (31.75, 20.32, -1.27),
    (31.75, 10.16, -1.27),
    (24.13, 10.16, -62.23),
    (24.13, 20.32, -62.23),
    (31.75, 20.32, -62.23),
    (31.75, 10.16, -62.23),
    (46.99, 10.16, -1.27),
    (46.99, 20.32, -1.27),
    (54.61, 20.32, -1.27),
    (54.61, 10.16, -1.27),
    (46.99, 10.16, -62.23),
    (46.99, 20.32, -62.23),
    (54.61, 20.32, -62.23),
    (54.61, 10.16, -62.23),
]))
fillet5.Radius = Q("0.08 in")

# Sketch on XY plane
sketch11 = body.newObject("Sketcher::SketchObject", "Sketch010")
sketch11.AttachmentSupport = (doc.getObject("XY_Plane"), [""])
sketch11.MapMode = "FlatFace"
sketch11.addGeometry([
    Part.LineSegment(Vector(100.33, 29.337, 0), Vector(100.33, 19.177, 0)),
    Part.LineSegment(Vector(100.33, 19.177, 0), Vector(115.57, 19.177, 0)),
    Part.LineSegment(Vector(115.57, 19.177, 0), Vector(115.57, 29.337, 0)),
    Part.LineSegment(Vector(115.57, 29.337, 0), Vector(100.33, 29.337, 0)),
], False)
sketch11.addConstraint([
    Sketcher.Constraint("Coincident", 0, 2, 1, 1),
    Sketcher.Constraint("Coincident", 1, 2, 2, 1),
    Sketcher.Constraint("Coincident", 2, 2, 3, 1),
    Sketcher.Constraint("Coincident", 3, 2, 0, 1),
    Sketcher.Constraint("Vertical", 0),
    Sketcher.Constraint("Horizontal", 1),
    Sketcher.Constraint("Vertical", 2),
    Sketcher.Constraint("Horizontal", 3),
    Sketcher.Constraint("DistanceX", 1, 1, 1, 2, Q("0.6 in")),
    Sketcher.Constraint("DistanceY", 0, 2, 0, 1, Q("0.4 in")),
    Sketcher.Constraint("DistanceX", -1, 1, 0, 2, Q("3.95 in")),
    Sketcher.Constraint("DistanceY", -1, 1, 0, 2, Q("0.755 in")),
])
pocket5 = body.newObject("PartDesign::Pocket", "Pocket004")
pocket5.Profile = sketch11
pocket5.Type = "UpToFirst"
doc.recompute()

fillet6 = body.newObject("PartDesign::Fillet", "Fillet005")
fillet6.Base = (pocket5, edges_at(pocket5, [
    (100.33, 19.177, -1.27),
    (100.33, 29.337, -1.27),
    (115.57, 29.337, -1.27),
    (115.57, 19.177, -1.27),
]))
fillet6.Radius = Q("0.1 in")

doc.recompute()
